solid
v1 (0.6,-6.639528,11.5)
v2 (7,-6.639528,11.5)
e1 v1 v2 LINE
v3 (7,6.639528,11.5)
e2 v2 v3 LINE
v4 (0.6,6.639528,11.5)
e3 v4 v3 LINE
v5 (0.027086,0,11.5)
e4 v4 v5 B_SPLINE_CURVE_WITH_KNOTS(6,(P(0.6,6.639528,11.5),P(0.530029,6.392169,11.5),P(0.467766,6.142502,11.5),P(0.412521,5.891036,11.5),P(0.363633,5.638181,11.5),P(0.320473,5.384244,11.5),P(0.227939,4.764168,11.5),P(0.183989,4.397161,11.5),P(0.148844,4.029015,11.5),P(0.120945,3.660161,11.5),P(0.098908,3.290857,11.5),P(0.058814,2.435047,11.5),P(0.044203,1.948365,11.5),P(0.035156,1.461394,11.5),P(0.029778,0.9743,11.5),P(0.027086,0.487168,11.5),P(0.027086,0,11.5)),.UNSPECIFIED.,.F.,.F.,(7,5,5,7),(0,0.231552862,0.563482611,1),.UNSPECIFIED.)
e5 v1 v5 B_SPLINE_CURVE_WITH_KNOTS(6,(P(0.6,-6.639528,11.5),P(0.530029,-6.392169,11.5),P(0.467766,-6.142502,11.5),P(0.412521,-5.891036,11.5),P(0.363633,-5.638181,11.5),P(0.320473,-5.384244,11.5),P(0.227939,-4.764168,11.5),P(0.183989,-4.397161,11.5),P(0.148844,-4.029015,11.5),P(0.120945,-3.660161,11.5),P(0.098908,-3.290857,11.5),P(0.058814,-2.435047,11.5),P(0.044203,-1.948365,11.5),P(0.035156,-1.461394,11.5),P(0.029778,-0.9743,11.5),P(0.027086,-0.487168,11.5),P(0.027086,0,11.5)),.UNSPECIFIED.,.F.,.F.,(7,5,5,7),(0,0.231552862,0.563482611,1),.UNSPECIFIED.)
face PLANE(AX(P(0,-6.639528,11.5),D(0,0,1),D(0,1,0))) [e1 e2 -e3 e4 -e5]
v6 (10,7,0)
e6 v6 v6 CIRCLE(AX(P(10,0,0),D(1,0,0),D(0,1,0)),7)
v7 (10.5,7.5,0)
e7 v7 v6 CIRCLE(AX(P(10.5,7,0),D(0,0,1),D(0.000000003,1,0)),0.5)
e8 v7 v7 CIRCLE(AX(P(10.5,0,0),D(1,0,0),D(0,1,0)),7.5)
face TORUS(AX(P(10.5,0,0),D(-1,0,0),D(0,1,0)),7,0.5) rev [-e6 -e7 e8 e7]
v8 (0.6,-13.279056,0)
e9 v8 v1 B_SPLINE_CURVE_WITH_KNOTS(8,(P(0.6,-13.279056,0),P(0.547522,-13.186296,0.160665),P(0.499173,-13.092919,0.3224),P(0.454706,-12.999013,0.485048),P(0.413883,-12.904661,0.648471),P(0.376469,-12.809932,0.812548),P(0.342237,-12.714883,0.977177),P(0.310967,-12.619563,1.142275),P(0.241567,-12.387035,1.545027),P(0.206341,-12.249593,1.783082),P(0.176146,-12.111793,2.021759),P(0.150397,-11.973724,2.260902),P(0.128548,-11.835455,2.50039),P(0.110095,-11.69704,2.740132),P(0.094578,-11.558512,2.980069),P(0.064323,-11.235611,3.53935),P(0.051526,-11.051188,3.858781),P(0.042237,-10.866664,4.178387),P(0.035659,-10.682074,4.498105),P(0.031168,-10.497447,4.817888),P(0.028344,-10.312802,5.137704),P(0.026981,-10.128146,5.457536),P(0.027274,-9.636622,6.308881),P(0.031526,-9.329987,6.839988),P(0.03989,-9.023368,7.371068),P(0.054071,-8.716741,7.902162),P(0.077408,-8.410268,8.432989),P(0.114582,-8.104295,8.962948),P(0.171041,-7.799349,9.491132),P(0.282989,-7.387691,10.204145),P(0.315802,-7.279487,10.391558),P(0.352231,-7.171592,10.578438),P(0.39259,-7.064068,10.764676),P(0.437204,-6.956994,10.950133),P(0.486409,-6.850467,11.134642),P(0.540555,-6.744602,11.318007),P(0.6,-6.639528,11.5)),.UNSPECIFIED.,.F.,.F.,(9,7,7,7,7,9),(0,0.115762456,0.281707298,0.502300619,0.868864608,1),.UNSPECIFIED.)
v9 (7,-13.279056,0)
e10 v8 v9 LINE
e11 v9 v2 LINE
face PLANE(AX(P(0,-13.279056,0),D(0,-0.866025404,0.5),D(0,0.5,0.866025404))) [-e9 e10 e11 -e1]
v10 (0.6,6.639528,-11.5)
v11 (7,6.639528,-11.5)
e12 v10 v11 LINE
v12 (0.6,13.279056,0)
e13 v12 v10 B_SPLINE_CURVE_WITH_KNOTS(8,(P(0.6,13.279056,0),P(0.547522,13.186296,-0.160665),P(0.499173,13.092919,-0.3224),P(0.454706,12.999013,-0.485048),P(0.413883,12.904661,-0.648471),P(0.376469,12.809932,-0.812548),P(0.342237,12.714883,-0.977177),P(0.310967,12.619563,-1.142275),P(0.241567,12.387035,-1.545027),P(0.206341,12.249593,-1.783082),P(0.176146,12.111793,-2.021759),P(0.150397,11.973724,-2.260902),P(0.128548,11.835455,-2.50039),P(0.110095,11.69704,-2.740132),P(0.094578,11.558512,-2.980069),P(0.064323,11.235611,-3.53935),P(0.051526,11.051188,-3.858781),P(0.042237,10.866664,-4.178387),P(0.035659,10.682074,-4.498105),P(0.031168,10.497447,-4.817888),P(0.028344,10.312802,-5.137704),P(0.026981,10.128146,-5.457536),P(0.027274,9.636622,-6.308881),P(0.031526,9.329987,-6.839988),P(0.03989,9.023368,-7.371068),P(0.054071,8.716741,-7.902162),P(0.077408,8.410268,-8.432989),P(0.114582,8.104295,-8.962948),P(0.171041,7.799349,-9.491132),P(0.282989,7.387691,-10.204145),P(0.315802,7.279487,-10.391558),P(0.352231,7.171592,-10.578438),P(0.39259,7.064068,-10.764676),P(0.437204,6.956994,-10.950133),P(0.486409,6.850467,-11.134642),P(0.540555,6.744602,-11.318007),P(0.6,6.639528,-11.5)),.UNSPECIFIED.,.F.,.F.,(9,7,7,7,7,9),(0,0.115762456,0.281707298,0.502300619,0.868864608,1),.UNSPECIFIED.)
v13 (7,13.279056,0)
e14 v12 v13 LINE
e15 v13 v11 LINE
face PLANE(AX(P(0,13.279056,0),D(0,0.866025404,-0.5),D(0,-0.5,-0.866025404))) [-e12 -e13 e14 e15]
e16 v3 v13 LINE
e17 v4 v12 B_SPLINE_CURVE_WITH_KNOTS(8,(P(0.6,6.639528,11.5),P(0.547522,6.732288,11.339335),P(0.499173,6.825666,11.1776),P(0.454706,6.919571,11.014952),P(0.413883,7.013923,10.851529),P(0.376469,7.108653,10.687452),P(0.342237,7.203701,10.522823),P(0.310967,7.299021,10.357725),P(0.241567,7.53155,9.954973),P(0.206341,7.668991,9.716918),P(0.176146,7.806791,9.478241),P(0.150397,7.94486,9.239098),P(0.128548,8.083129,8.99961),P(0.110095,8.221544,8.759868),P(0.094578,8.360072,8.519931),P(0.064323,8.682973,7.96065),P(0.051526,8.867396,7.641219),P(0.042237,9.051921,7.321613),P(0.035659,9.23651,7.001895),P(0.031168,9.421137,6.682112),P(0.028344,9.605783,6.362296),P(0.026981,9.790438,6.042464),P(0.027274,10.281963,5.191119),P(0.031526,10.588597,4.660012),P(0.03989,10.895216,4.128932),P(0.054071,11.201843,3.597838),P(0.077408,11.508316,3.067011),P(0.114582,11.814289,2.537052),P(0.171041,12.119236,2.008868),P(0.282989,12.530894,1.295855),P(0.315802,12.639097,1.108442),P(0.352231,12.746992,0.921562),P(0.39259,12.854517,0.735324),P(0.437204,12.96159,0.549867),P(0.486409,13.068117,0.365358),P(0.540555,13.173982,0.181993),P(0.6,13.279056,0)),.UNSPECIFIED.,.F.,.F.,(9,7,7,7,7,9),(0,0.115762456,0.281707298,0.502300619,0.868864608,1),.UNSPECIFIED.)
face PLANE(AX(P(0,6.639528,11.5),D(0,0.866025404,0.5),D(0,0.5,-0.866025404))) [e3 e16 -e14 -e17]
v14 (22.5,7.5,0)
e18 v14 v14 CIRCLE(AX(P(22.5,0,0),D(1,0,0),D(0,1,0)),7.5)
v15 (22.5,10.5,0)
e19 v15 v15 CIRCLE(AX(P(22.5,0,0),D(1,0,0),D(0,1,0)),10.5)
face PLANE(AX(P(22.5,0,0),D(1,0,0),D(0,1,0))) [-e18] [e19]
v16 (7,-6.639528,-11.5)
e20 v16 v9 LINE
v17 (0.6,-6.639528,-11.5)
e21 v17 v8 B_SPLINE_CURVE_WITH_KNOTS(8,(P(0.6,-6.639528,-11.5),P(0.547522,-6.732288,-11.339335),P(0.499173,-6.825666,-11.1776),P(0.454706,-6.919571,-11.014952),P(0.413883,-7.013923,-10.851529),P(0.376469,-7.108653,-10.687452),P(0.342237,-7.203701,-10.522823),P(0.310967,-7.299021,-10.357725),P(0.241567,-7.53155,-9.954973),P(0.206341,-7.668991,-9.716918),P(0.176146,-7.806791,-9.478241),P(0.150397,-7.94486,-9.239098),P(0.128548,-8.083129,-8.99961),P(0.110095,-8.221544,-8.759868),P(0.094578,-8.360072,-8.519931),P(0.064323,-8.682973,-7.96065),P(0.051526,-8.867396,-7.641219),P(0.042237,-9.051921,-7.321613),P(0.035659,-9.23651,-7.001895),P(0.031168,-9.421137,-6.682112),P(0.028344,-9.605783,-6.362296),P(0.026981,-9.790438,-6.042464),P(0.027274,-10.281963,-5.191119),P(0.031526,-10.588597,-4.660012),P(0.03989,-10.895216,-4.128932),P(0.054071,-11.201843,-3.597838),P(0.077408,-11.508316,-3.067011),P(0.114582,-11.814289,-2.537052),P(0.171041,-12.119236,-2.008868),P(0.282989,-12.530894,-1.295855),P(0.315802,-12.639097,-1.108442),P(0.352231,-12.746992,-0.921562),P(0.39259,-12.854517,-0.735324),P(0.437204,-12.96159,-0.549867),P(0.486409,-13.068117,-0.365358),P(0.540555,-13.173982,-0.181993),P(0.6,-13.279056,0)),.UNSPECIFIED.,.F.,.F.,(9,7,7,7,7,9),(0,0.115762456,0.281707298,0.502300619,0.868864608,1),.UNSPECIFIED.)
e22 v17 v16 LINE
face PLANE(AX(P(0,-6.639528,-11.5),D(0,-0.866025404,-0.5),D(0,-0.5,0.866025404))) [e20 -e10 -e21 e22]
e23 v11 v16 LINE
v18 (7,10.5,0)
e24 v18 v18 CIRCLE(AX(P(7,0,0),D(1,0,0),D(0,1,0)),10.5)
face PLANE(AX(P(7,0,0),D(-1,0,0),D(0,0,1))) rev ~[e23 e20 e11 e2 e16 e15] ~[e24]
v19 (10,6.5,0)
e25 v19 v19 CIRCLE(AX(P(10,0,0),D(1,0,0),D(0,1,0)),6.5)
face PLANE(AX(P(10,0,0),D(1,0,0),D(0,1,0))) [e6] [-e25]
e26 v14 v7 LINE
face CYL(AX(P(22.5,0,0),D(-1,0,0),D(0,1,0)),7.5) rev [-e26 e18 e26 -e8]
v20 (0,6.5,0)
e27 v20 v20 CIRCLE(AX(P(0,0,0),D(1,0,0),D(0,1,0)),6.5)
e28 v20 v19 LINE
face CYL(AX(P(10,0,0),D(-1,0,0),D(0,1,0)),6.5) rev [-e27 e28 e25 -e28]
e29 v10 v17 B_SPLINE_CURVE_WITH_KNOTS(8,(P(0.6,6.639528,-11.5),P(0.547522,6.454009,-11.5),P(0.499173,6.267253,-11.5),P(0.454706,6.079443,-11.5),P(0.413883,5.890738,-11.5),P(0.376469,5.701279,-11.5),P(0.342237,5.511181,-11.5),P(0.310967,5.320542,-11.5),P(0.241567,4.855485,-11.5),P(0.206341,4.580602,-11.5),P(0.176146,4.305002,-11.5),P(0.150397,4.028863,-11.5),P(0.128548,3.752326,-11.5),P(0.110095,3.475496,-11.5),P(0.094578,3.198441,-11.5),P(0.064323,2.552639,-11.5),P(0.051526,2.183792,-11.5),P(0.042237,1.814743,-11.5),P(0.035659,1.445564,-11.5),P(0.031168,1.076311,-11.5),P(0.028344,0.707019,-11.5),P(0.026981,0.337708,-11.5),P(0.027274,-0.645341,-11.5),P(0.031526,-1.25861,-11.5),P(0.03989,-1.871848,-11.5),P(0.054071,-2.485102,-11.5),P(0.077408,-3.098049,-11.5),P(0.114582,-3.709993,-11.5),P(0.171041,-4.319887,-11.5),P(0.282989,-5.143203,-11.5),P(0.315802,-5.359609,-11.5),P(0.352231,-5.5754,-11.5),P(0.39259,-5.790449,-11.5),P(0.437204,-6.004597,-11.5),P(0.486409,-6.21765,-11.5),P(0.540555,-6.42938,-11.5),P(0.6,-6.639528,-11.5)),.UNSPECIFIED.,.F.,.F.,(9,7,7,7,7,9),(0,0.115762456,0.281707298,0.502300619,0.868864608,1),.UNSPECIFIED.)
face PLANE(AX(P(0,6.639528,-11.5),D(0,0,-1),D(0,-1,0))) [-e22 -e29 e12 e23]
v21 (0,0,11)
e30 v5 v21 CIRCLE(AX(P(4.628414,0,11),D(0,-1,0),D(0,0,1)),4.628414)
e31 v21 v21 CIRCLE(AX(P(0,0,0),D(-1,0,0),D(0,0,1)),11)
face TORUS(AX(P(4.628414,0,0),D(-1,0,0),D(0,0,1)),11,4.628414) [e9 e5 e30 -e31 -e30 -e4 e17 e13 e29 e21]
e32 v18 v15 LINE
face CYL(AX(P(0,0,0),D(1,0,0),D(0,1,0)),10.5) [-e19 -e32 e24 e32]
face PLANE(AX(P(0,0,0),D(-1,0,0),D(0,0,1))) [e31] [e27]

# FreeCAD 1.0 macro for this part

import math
import FreeCAD as App
import Part
import Sketcher
Q = App.Units.Quantity

doc = App.newDocument("Part")
params = doc.addObject("Spreadsheet::Sheet", "Params")
for row, (alias, value) in enumerate([
    ("sketch1_radius", "0.5 mm"),
    ("sketch1_width", "10 mm"),
    ("sketch1_width2", "12 mm"),
    ("sketch1_height", "4 mm"),
    ("sketch1_height2", "3 mm"),
    ("revolution_angle", "360 deg"),
    ("sketch2_diameter", "13 mm"),
    ("pad1_length", "7 mm"),
    ("sketch3_width", "0.6 mm"),
    ("sketch4_diameter", "23 mm"),
], start=1):
    params.set(f"A{row}", alias)
    params.set(f"B{row}", "=" + value)
    params.setAlias(f"B{row}", alias)

body = doc.addObject("PartDesign::Body", "Body")

sketch1 = body.newObject("Sketcher::SketchObject", "Sketch")
sketch1.AttachmentSupport = (doc.getObject("XY_Plane"), [""])
sketch1.MapMode = "FlatFace"
sketch1.addGeometry([
    Part.LineSegment(App.Vector(0, 10.5, 0), App.Vector(0, 6.5, 0)),
    Part.LineSegment(App.Vector(0, 6.5, 0), App.Vector(10, 6.5, 0)),
    Part.LineSegment(App.Vector(10, 6.5, 0), App.Vector(10, 7, 0)),
    Part.ArcOfCircle(Part.Circle(App.Vector(10.5, 7, 0), App.Vector(0, 0, 1), 0.5), math.radians(90), math.radians(180)),
    Part.LineSegment(App.Vector(10.5, 7.5, 0), App.Vector(22.5, 7.5, 0)),
    Part.LineSegment(App.Vector(22.5, 7.5, 0), App.Vector(22.5, 10.5, 0)),
    Part.LineSegment(App.Vector(22.5, 10.5, 0), App.Vector(0, 10.5, 0)),
], False)
sketch1.addConstraint([
    Sketcher.Constraint("Coincident", 0, 2, 1, 1),
    Sketcher.Constraint("Coincident", 1, 2, 2, 1),
    Sketcher.Constraint("Tangent", 2, 2, 3, 2),
    Sketcher.Constraint("Tangent", 3, 1, 4, 1),
    Sketcher.Constraint("Coincident", 4, 2, 5, 1),
    Sketcher.Constraint("Coincident", 5, 2, 6, 1),
    Sketcher.Constraint("Coincident", 6, 2, 0, 1),
    Sketcher.Constraint("Vertical", 0),
    Sketcher.Constraint("Horizontal", 1),
    Sketcher.Constraint("Vertical", 2),
    Sketcher.Constraint("Horizontal", 4),
    Sketcher.Constraint("Vertical", 5),
    Sketcher.Constraint("Horizontal", 6),
    Sketcher.Constraint("PointOnObject", 0, 2, -2),
    Sketcher.Constraint("Radius", 3, 0.5),
    Sketcher.Constraint("DistanceX", 1, 1, 1, 2, 10.0),
    Sketcher.Constraint("DistanceX", 4, 1, 4, 2, 12.0),
    Sketcher.Constraint("DistanceY", 0, 2, 0, 1, 4.0),
    Sketcher.Constraint("DistanceY", 5, 1, 5, 2, 3.0),
    Sketcher.Constraint("DistanceY", -1, 1, 3, 3, 7.0),
])
sketch1.setExpression("Constraints[14]", "Params.sketch1_radius")
sketch1.setExpression("Constraints[15]", "Params.sketch1_width")
sketch1.setExpression("Constraints[16]", "Params.sketch1_width2")
sketch1.setExpression("Constraints[17]", "Params.sketch1_height")
sketch1.setExpression("Constraints[18]", "Params.sketch1_height2")
revolution = body.newObject("PartDesign::Revolution", "Revolution")
revolution.Profile = sketch1
revolution.ReferenceAxis = (sketch1, ["H_Axis"])
revolution.setExpression("Angle", "Params.revolution_angle")

sketch2 = body.newObject("Sketcher::SketchObject", "Sketch001")
sketch2.AttachmentSupport = (doc.getObject("YZ_Plane"), [""])
sketch2.MapMode = "FlatFace"
sketch2.addGeometry([
    Part.LineSegment(App.Vector(13.279056, 0, 0), App.Vector(6.639528, -11.5, 0)),
    Part.LineSegment(App.Vector(6.639528, -11.5, 0), App.Vector(-6.639528, -11.5, 0)),
    Part.LineSegment(App.Vector(-6.639528, -11.5, 0), App.Vector(-13.279056, 0, 0)),
    Part.LineSegment(App.Vector(-13.279056, 0, 0), App.Vector(-6.639528, 11.5, 0)),
    Part.LineSegment(App.Vector(-6.639528, 11.5, 0), App.Vector(6.639528, 11.5, 0)),
    Part.LineSegment(App.Vector(6.639528, 11.5, 0), App.Vector(13.279056, 0, 0)),
    Part.Circle(App.Vector(0, 0, 0), App.Vector(0, 0, 1), 6.5),
], False)
sketch2.addConstraint([
    Sketcher.Constraint("Coincident", 0, 2, 1, 1),
    Sketcher.Constraint("Coincident", 1, 2, 2, 1),
    Sketcher.Constraint("Coincident", 2, 2, 3, 1),
    Sketcher.Constraint("Coincident", 3, 2, 4, 1),
    Sketcher.Constraint("Coincident", 4, 2, 5, 1),
    Sketcher.Constraint("Coincident", 5, 2, 0, 1),
    Sketcher.Constraint("Horizontal", 1),
    Sketcher.Constraint("Horizontal", 4),
    Sketcher.Constraint("Coincident", 6, 3, -1, 1),
    Sketcher.Constraint("Symmetric", 0, 2, 3, 2, -1, 1),
    Sketcher.Constraint("Symmetric", 2, 2, 5, 2, -1, 1),
    Sketcher.Constraint("PointOnObject", 2, 2, -1),
    Sketcher.Constraint("Parallel", 2, 5),
    Sketcher.Constraint("Vertical", 1, 2, 3, 2),
    Sketcher.Constraint("Diameter", 6, 13.0),
    Sketcher.Constraint("Angle", 0, Q("-120 deg")),
    Sketcher.Constraint("DistanceY", 1, 2, 3, 2, 23.0),
    Sketcher.Constraint("DistanceX", 1, 2, 1, 1, 13.279056),
])
sketch2.setExpression("Constraints[14]", "Params.sketch2_diameter")
pad1 = body.newObject("PartDesign::Pad", "Pad")
pad1.Profile = sketch2
pad1.setExpression("Length", "Params.pad1_length")

sketch3 = body.newObject("Sketcher::SketchObject", "Sketch002")
sketch3.AttachmentSupport = (doc.getObject("XY_Plane"), [""])
sketch3.MapMode = "FlatFace"
sketch3.addGeometry([
    Part.LineSegment(App.Vector(0.6, 13.279056, 0), App.Vector(0, 13.279056, 0)),
    Part.LineSegment(App.Vector(0, 13.279056, 0), App.Vector(0, 11, 0)),
    Part.ArcOfCircle(Part.Circle(App.Vector(4.628414, 11, 0), App.Vector(0, 0, 1), 4.628414), math.radians(150.501195), math.radians(180)),
], False)
sketch3.addConstraint([
    Sketcher.Constraint("Coincident", 0, 2, 1, 1),
    Sketcher.Constraint("Tangent", 1, 2, 2, 2),
    Sketcher.Constraint("Coincident", 2, 1, 0, 1),
    Sketcher.Constraint("Horizontal", 0),
    Sketcher.Constraint("Vertical", 1),
    Sketcher.Constraint("PointOnObject", 0, 2, -2),
    Sketcher.Constraint("DistanceX", 0, 2, 0, 1, 0.6),
    Sketcher.Constraint("DistanceY", -1, 1, 2, 3, 11.0),
    Sketcher.Constraint("Radius", 2, 4.628414),
])
sketch3.setExpression("Constraints[6]", "Params.sketch3_width")

sketch4 = body.newObject("Sketcher::SketchObject", "Sketch003")
sketch4.AttachmentSupport = (doc.getObject("YZ_Plane"), [""])
sketch4.MapMode = "FlatFace"
sketch4.addGeometry(Part.Circle(App.Vector(0, 0, 0), App.Vector(0, 0, 1), 11.5), False)
sketch4.addConstraint([
    Sketcher.Constraint("Coincident", 0, 3, -1, 1),
    Sketcher.Constraint("Diameter", 0, 23.0),
])
sketch4.setExpression("Constraints[1]", "Params.sketch4_diameter")
doc.recompute()

subtractivepipe = body.newObject("PartDesign::SubtractivePipe", "SubtractivePipe")
subtractivepipe.Profile = sketch3
subtractivepipe.Spine = (sketch4, ["Edge1"])

doc.recompute()
